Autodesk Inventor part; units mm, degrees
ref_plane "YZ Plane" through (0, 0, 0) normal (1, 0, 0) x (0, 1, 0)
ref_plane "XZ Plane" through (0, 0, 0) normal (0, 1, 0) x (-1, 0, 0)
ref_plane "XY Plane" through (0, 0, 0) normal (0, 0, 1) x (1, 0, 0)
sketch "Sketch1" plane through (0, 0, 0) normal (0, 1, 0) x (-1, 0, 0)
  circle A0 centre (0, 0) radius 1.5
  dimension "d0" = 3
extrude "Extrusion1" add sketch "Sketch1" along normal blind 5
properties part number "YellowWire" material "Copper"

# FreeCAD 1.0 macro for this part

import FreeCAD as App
import Part
import Sketcher
from FreeCAD import Vector

doc = App.newDocument("Part")
body = doc.addObject("PartDesign::Body", "Body")

# Sketch on XZ plane
sketch1 = doc.addObject("Sketcher::SketchObject", "Sketch")
body.addObject(sketch1)
sketch1.AttachmentSupport = (doc.XZ_Plane, [""])
sketch1.MapMode = "FlatFace"
sketch1.addGeometry(Part.Circle(Vector(0, 0, 0), Vector(0, 0, 1), 1.5), False)
sketch1.addConstraint([
    Sketcher.Constraint("Coincident", 0, 3, -1, 1),
    Sketcher.Constraint("Diameter", 0, 3.0),
])
pad1 = doc.addObject("PartDesign::Pad", "Pad")
body.addObject(pad1)
pad1.Profile = sketch1
pad1.Length = 5
pad1.Reversed = True

doc.recompute()
